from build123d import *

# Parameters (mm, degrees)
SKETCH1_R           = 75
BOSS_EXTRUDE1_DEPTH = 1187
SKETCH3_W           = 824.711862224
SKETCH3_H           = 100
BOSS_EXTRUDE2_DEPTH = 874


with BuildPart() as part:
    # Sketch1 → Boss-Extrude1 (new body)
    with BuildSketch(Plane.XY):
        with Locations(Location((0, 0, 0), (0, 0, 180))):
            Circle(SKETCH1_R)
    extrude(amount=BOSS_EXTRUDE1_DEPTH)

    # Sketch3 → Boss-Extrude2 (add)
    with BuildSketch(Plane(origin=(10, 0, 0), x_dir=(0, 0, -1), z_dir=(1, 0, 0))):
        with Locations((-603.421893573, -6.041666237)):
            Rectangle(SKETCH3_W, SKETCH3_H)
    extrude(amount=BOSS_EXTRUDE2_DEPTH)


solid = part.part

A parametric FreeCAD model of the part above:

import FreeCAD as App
import Part
import Sketcher
Q = App.Units.Quantity

doc = App.newDocument("Part")
body = doc.addObject("PartDesign::Body", "Body")

# Sketch on XY plane
sketch1 = body.newObject("Sketcher::SketchObject", "Sketch")
sketch1.AttachmentSupport = (doc.getObject("XY_Plane"), [""])
sketch1.MapMode = "FlatFace"
sketch1.addGeometry(Part.Circle(App.Vector(0, 0, 0), App.Vector(0, 0, 1), 75), False)
sketch1.addConstraint([
    Sketcher.Constraint("Coincident", 0, 3, -1, 1),
    Sketcher.Constraint("Diameter", 0, Q("150 mm")),
])
pad1 = body.newObject("PartDesign::Pad", "Pad")
pad1.Profile = sketch1
pad1.Length = 1187

# Sketch on YZ plane
sketch2 = body.newObject("Sketcher::SketchObject", "Sketch001")
sketch2.AttachmentSupport = (doc.getObject("YZ_Plane"), [""])
sketch2.MapMode = "FlatFace"
sketch2.AttachmentOffset = App.Placement(App.Vector(0, 0, 10), App.Rotation())
sketch2.addGeometry([
    Part.LineSegment(App.Vector(44, 1016, 0), App.Vector(-56, 1016, 0)),
    Part.LineSegment(App.Vector(-56, 1016, 0), App.Vector(-56, 191, 0)),
    Part.LineSegment(App.Vector(-56, 191, 0), App.Vector(44, 191, 0)),
    Part.LineSegment(App.Vector(44, 191, 0), App.Vector(44, 1016, 0)),
], False)
sketch2.addConstraint([
    Sketcher.Constraint("Coincident", 0, 2, 1, 1),
    Sketcher.Constraint("Coincident", 1, 2, 2, 1),
    Sketcher.Constraint("Coincident", 2, 2, 3, 1),
    Sketcher.Constraint("Coincident", 3, 2, 0, 1),
    Sketcher.Constraint("Horizontal", 0),
    Sketcher.Constraint("Vertical", 1),
    Sketcher.Constraint("Horizontal", 2),
    Sketcher.Constraint("Vertical", 3),
    Sketcher.Constraint("DistanceX", 0, 2, 0, 1, Q("100 mm")),
    Sketcher.Constraint("DistanceY", 1, 2, 1, 1, Q("824.711862 mm")),
    Sketcher.Constraint("DistanceX", 0, 2, -1, 1, Q("56.041666 mm")),
    Sketcher.Constraint("DistanceY", -1, 1, 0, 2, Q("1015.777825 mm")),
])
pad2 = body.newObject("PartDesign::Pad", "Pad001")
pad2.Profile = sketch2
pad2.Length = 874

doc.recompute()
